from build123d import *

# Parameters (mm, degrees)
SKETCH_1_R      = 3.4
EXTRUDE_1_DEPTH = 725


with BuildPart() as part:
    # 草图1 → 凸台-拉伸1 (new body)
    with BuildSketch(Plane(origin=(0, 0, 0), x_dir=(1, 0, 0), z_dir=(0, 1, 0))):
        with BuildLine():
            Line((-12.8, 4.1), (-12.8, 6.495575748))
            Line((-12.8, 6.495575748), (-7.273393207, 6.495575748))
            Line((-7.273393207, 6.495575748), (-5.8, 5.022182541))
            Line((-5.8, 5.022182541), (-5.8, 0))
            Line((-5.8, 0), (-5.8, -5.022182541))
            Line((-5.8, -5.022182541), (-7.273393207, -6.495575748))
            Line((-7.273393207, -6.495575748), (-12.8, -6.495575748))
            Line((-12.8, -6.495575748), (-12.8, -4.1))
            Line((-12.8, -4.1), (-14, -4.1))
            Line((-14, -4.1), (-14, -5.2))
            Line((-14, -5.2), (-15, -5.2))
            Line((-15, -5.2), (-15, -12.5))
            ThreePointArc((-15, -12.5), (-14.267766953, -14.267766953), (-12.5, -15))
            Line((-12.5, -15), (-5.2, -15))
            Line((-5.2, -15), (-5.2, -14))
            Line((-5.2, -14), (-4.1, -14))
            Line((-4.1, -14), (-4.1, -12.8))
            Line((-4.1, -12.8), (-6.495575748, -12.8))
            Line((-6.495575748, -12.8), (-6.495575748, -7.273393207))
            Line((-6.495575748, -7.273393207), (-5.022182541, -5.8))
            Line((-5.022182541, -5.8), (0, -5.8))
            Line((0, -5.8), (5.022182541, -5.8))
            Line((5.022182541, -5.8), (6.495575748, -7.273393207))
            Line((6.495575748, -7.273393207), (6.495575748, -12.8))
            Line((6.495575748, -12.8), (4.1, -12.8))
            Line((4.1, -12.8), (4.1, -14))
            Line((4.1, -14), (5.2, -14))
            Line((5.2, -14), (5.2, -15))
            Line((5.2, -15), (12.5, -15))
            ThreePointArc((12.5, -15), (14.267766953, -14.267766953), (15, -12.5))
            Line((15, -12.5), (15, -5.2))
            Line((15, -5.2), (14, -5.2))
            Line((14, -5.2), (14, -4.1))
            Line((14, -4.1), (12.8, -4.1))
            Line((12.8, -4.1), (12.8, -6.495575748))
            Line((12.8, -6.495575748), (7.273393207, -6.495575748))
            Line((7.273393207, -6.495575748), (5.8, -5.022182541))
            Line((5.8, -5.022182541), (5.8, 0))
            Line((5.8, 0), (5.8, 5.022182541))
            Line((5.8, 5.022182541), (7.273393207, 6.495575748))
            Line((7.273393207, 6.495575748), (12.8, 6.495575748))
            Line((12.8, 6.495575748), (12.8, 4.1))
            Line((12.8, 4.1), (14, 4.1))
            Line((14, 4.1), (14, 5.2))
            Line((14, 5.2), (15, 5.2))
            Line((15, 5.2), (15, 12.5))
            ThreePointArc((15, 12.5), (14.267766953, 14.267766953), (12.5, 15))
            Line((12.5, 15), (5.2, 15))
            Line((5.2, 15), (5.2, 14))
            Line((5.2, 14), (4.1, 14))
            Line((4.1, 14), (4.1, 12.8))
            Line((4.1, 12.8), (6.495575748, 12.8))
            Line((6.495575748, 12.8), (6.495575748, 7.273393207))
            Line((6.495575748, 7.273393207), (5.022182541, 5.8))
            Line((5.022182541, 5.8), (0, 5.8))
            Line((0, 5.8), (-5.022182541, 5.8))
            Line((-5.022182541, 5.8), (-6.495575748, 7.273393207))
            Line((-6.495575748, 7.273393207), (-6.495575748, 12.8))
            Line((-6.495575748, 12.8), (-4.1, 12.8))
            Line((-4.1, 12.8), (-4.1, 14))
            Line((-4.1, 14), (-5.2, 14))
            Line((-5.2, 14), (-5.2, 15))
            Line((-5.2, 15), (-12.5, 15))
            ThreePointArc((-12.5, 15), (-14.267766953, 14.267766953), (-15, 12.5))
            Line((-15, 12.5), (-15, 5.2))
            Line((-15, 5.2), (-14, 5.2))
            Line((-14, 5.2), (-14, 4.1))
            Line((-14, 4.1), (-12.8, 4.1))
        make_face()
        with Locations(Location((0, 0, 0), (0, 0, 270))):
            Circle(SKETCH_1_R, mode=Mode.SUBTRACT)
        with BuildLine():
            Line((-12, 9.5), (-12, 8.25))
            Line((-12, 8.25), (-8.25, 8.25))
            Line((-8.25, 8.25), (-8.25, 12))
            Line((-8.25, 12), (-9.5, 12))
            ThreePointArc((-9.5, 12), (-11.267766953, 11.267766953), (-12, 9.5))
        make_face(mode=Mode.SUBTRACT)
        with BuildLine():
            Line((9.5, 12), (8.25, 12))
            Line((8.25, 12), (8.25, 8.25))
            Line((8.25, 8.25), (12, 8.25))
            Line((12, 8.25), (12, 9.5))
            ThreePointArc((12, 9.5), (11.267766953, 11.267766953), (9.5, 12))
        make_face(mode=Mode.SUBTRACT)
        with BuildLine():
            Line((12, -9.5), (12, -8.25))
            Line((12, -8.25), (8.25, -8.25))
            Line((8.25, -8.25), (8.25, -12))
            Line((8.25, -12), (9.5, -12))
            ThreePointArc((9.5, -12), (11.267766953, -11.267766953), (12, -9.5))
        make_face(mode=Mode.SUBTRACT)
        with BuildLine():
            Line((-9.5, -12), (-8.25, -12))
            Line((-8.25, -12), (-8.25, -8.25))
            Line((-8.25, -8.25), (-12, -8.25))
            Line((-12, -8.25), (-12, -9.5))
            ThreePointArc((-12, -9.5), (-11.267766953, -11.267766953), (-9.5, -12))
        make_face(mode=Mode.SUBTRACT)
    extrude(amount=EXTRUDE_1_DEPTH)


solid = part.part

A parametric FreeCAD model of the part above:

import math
import FreeCAD as App
import Part
import Sketcher
from FreeCAD import Vector

doc = App.newDocument("Part")
body = doc.addObject("PartDesign::Body", "Body")

# Sketch on XZ plane
sketch1 = body.newObject("Sketcher::SketchObject", "Sketch")
sketch1.AttachmentSupport = (doc.getObject("XZ_Plane"), [""])
sketch1.MapMode = "FlatFace"
sketch1.addGeometry([
    Part.LineSegment(Vector(-12.8, -4.1, 0), Vector(-12.8, -6.5, 0)),  # 0
    Part.LineSegment(Vector(-12.8, -6.5, 0), Vector(-7.3, -6.5, 0)),  # 1
    Part.LineSegment(Vector(-7.3, -6.5, 0), Vector(-5.8, -5, 0)),  # 2
    Part.LineSegment(Vector(-5.8, -5, 0), Vector(-5.8, 5, 0)),  # 3
    Part.LineSegment(Vector(-5.8, 5, 0), Vector(-7.3, 6.5, 0)),  # 4
    Part.LineSegment(Vector(-7.3, 6.5, 0), Vector(-12.8, 6.5, 0)),  # 5
    Part.LineSegment(Vector(-12.8, 6.5, 0), Vector(-12.8, 4.1, 0)),  # 6
    Part.LineSegment(Vector(-12.8, 4.1, 0), Vector(-14, 4.1, 0)),  # 7
    Part.LineSegment(Vector(-14, 4.1, 0), Vector(-14, 5.2, 0)),  # 8
    Part.LineSegment(Vector(-14, 5.2, 0), Vector(-15, 5.2, 0)),  # 9
    Part.LineSegment(Vector(-15, 5.2, 0), Vector(-15, 12.5, 0)),  # 10
    Part.ArcOfCircle(Part.Circle(Vector(-12.5, 12.5, 0), Vector(0, 0, 1), 2.5), math.radians(90), math.radians(180)),  # 11
    Part.LineSegment(Vector(-12.5, 15, 0), Vector(-5.2, 15, 0)),  # 12
    Part.LineSegment(Vector(-5.2, 15, 0), Vector(-5.2, 14, 0)),  # 13
    Part.LineSegment(Vector(-5.2, 14, 0), Vector(-4.1, 14, 0)),  # 14
    Part.LineSegment(Vector(-4.1, 14, 0), Vector(-4.1, 12.8, 0)),  # 15
    Part.LineSegment(Vector(-4.1, 12.8, 0), Vector(-6.5, 12.8, 0)),  # 16
    Part.LineSegment(Vector(-6.5, 12.8, 0), Vector(-6.5, 7.3, 0)),  # 17
    Part.LineSegment(Vector(-6.5, 7.3, 0), Vector(-5, 5.8, 0)),  # 18
    Part.LineSegment(Vector(-5, 5.8, 0), Vector(5, 5.8, 0)),  # 19
    Part.LineSegment(Vector(5, 5.8, 0), Vector(6.5, 7.3, 0)),  # 20
    Part.LineSegment(Vector(6.5, 7.3, 0), Vector(6.5, 12.8, 0)),  # 21
    Part.LineSegment(Vector(6.5, 12.8, 0), Vector(4.1, 12.8, 0)),  # 22
    Part.LineSegment(Vector(4.1, 12.8, 0), Vector(4.1, 14, 0)),  # 23
    Part.LineSegment(Vector(4.1, 14, 0), Vector(5.2, 14, 0)),  # 24
    Part.LineSegment(Vector(5.2, 14, 0), Vector(5.2, 15, 0)),  # 25
    Part.LineSegment(Vector(5.2, 15, 0), Vector(12.5, 15, 0)),  # 26
    Part.ArcOfCircle(Part.Circle(Vector(12.5, 12.5, 0), Vector(0, 0, 1), 2.5), math.radians(0), math.radians(90)),  # 27
    Part.LineSegment(Vector(15, 12.5, 0), Vector(15, 5.2, 0)),  # 28
    Part.LineSegment(Vector(15, 5.2, 0), Vector(14, 5.2, 0)),  # 29
    Part.LineSegment(Vector(14, 5.2, 0), Vector(14, 4.1, 0)),  # 30
    Part.LineSegment(Vector(14, 4.1, 0), Vector(12.8, 4.1, 0)),  # 31
    Part.LineSegment(Vector(12.8, 4.1, 0), Vector(12.8, 6.5, 0)),  # 32
    Part.LineSegment(Vector(12.8, 6.5, 0), Vector(7.3, 6.5, 0)),  # 33
    Part.LineSegment(Vector(7.3, 6.5, 0), Vector(5.8, 5, 0)),  # 34
    Part.LineSegment(Vector(5.8, 5, 0), Vector(5.8, -5, 0)),  # 35
    Part.LineSegment(Vector(5.8, -5, 0), Vector(7.3, -6.5, 0)),  # 36
    Part.LineSegment(Vector(7.3, -6.5, 0), Vector(12.8, -6.5, 0)),  # 37
    Part.LineSegment(Vector(12.8, -6.5, 0), Vector(12.8, -4.1, 0)),  # 38
    Part.LineSegment(Vector(12.8, -4.1, 0), Vector(14, -4.1, 0)),  # 39
    Part.LineSegment(Vector(14, -4.1, 0), Vector(14, -5.2, 0)),  # 40
    Part.LineSegment(Vector(14, -5.2, 0), Vector(15, -5.2, 0)),  # 41
    Part.LineSegment(Vector(15, -5.2, 0), Vector(15, -12.5, 0)),  # 42
    Part.ArcOfCircle(Part.Circle(Vector(12.5, -12.5, 0), Vector(0, 0, 1), 2.5), math.radians(-90), math.radians(0)),  # 43
    Part.LineSegment(Vector(12.5, -15, 0), Vector(5.2, -15, 0)),  # 44
    Part.LineSegment(Vector(5.2, -15, 0), Vector(5.2, -14, 0)),  # 45
    Part.LineSegment(Vector(5.2, -14, 0), Vector(4.1, -14, 0)),  # 46
    Part.LineSegment(Vector(4.1, -14, 0), Vector(4.1, -12.8, 0)),  # 47
    Part.LineSegment(Vector(4.1, -12.8, 0), Vector(6.5, -12.8, 0)),  # 48
    Part.LineSegment(Vector(6.5, -12.8, 0), Vector(6.5, -7.3, 0)),  # 49
    Part.LineSegment(Vector(6.5, -7.3, 0), Vector(5, -5.8, 0)),  # 50
    Part.LineSegment(Vector(5, -5.8, 0), Vector(-5, -5.8, 0)),  # 51
    Part.LineSegment(Vector(-5, -5.8, 0), Vector(-6.5, -7.3, 0)),  # 52
    Part.LineSegment(Vector(-6.5, -7.3, 0), Vector(-6.5, -12.8, 0)),  # 53
    Part.LineSegment(Vector(-6.5, -12.8, 0), Vector(-4.1, -12.8, 0)),  # 54
    Part.LineSegment(Vector(-4.1, -12.8, 0), Vector(-4.1, -14, 0)),  # 55
    Part.LineSegment(Vector(-4.1, -14, 0), Vector(-5.2, -14, 0)),  # 56
    Part.LineSegment(Vector(-5.2, -14, 0), Vector(-5.2, -15, 0)),  # 57
    Part.LineSegment(Vector(-5.2, -15, 0), Vector(-12.5, -15, 0)),  # 58
    Part.ArcOfCircle(Part.Circle(Vector(-12.5, -12.5, 0), Vector(0, 0, 1), 2.5), math.radians(180), math.radians(270)),  # 59
    Part.LineSegment(Vector(-15, -12.5, 0), Vector(-15, -5.2, 0)),  # 60
    Part.LineSegment(Vector(-15, -5.2, 0), Vector(-14, -5.2, 0)),  # 61
    Part.LineSegment(Vector(-14, -5.2, 0), Vector(-14, -4.1, 0)),  # 62
    Part.LineSegment(Vector(-14, -4.1, 0), Vector(-12.8, -4.1, 0)),  # 63
    Part.LineSegment(Vector(-8.2, 12, 0), Vector(-9.5, 12, 0)),  # 64
    Part.ArcOfCircle(Part.Circle(Vector(-9.5, 9.5, 0), Vector(0, 0, 1), 2.5), math.radians(90), math.radians(180)),  # 65
    Part.LineSegment(Vector(-12, 9.5, 0), Vector(-12, 8.2, 0)),  # 66
    Part.LineSegment(Vector(-12, 8.2, 0), Vector(-8.2, 8.2, 0)),  # 67
    Part.LineSegment(Vector(-8.2, 8.2, 0), Vector(-8.2, 12, 0)),  # 68
    Part.LineSegment(Vector(12, 8.2, 0), Vector(12, 9.5, 0)),  # 69
    Part.ArcOfCircle(Part.Circle(Vector(9.5, 9.5, 0), Vector(0, 0, 1), 2.5), math.radians(0), math.radians(90)),  # 70
    Part.LineSegment(Vector(9.5, 12, 0), Vector(8.2, 12, 0)),  # 71
    Part.LineSegment(Vector(8.2, 12, 0), Vector(8.2, 8.2, 0)),  # 72
    Part.LineSegment(Vector(8.2, 8.2, 0), Vector(12, 8.2, 0)),  # 73
    Part.LineSegment(Vector(-12, -8.2, 0), Vector(-12, -9.5, 0)),  # 74
    Part.ArcOfCircle(Part.Circle(Vector(-9.5, -9.5, 0), Vector(0, 0, 1), 2.5), math.radians(180), math.radians(270)),  # 75
    Part.LineSegment(Vector(-9.5, -12, 0), Vector(-8.2, -12, 0)),  # 76
    Part.LineSegment(Vector(-8.2, -12, 0), Vector(-8.2, -8.2, 0)),  # 77
    Part.LineSegment(Vector(-8.2, -8.2, 0), Vector(-12, -8.2, 0)),  # 78
    Part.Circle(Vector(0, 0, 0), Vector(0, 0, 1), 3.4),  # 79
    Part.LineSegment(Vector(8.2, -12, 0), Vector(9.5, -12, 0)),  # 80
    Part.ArcOfCircle(Part.Circle(Vector(9.5, -9.5, 0), Vector(0, 0, 1), 2.5), math.radians(-90), math.radians(0)),  # 81
    Part.LineSegment(Vector(12, -9.5, 0), Vector(12, -8.2, 0)),  # 82
    Part.LineSegment(Vector(12, -8.2, 0), Vector(8.2, -8.2, 0)),  # 83
    Part.LineSegment(Vector(8.2, -8.2, 0), Vector(8.2, -12, 0)),  # 84
], False)
sketch1.addConstraint([
    Sketcher.Constraint("Coincident", 0, 2, 1, 1),
    Sketcher.Constraint("Coincident", 1, 2, 2, 1),
    Sketcher.Constraint("Coincident", 2, 2, 3, 1),
    Sketcher.Constraint("Coincident", 3, 2, 4, 1),
    Sketcher.Constraint("Coincident", 4, 2, 5, 1),
    Sketcher.Constraint("Coincident", 5, 2, 6, 1),
    Sketcher.Constraint("Coincident", 6, 2, 7, 1),
    Sketcher.Constraint("Coincident", 7, 2, 8, 1),
    Sketcher.Constraint("Coincident", 8, 2, 9, 1),
    Sketcher.Constraint("Coincident", 9, 2, 10, 1),
    Sketcher.Constraint("Tangent", 10, 2, 11, 2),
    Sketcher.Constraint("Tangent", 11, 1, 12, 1),
    Sketcher.Constraint("Coincident", 12, 2, 13, 1),
    Sketcher.Constraint("Coincident", 13, 2, 14, 1),
    Sketcher.Constraint("Coincident", 14, 2, 15, 1),
    Sketcher.Constraint("Coincident", 15, 2, 16, 1),
    Sketcher.Constraint("Coincident", 16, 2, 17, 1),
    Sketcher.Constraint("Coincident", 17, 2, 18, 1),
    Sketcher.Constraint("Coincident", 18, 2, 19, 1),
    Sketcher.Constraint("Coincident", 19, 2, 20, 1),
    Sketcher.Constraint("Coincident", 20, 2, 21, 1),
    Sketcher.Constraint("Coincident", 21, 2, 22, 1),
    Sketcher.Constraint("Coincident", 22, 2, 23, 1),
    Sketcher.Constraint("Coincident", 23, 2, 24, 1),
    Sketcher.Constraint("Coincident", 24, 2, 25, 1),
    Sketcher.Constraint("Coincident", 25, 2, 26, 1),
    Sketcher.Constraint("Tangent", 26, 2, 27, 2),
    Sketcher.Constraint("Tangent", 27, 1, 28, 1),
    Sketcher.Constraint("Coincident", 28, 2, 29, 1),
    Sketcher.Constraint("Coincident", 29, 2, 30, 1),
    Sketcher.Constraint("Coincident", 30, 2, 31, 1),
    Sketcher.Constraint("Coincident", 31, 2, 32, 1),
    Sketcher.Constraint("Coincident", 32, 2, 33, 1),
    Sketcher.Constraint("Coincident", 33, 2, 34, 1),
    Sketcher.Constraint("Coincident", 34, 2, 35, 1),
    Sketcher.Constraint("Coincident", 35, 2, 36, 1),
    Sketcher.Constraint("Coincident", 36, 2, 37, 1),
    Sketcher.Constraint("Coincident", 37, 2, 38, 1),
    Sketcher.Constraint("Coincident", 38, 2, 39, 1),
    Sketcher.Constraint("Coincident", 39, 2, 40, 1),
    Sketcher.Constraint("Coincident", 40, 2, 41, 1),
    Sketcher.Constraint("Coincident", 41, 2, 42, 1),
    Sketcher.Constraint("Tangent", 42, 2, 43, 2),
    Sketcher.Constraint("Tangent", 43, 1, 44, 1),
    Sketcher.Constraint("Coincident", 44, 2, 45, 1),
    Sketcher.Constraint("Coincident", 45, 2, 46, 1),
    Sketcher.Constraint("Coincident", 46, 2, 47, 1),
    Sketcher.Constraint("Coincident", 47, 2, 48, 1),
    Sketcher.Constraint("Coincident", 48, 2, 49, 1),
    Sketcher.Constraint("Coincident", 49, 2, 50, 1),
    Sketcher.Constraint("Coincident", 50, 2, 51, 1),
    Sketcher.Constraint("Coincident", 51, 2, 52, 1),
    Sketcher.Constraint("Coincident", 52, 2, 53, 1),
    Sketcher.Constraint("Coincident", 53, 2, 54, 1),
    Sketcher.Constraint("Coincident", 54, 2, 55, 1),
    Sketcher.Constraint("Coincident", 55, 2, 56, 1),
    Sketcher.Constraint("Coincident", 56, 2, 57, 1),
    Sketcher.Constraint("Coincident", 57, 2, 58, 1),
    Sketcher.Constraint("Tangent", 58, 2, 59, 2),
    Sketcher.Constraint("Tangent", 59, 1, 60, 1),
    Sketcher.Constraint("Coincident", 60, 2, 61, 1),
    Sketcher.Constraint("Coincident", 61, 2, 62, 1),
    Sketcher.Constraint("Coincident", 62, 2, 63, 1),
    Sketcher.Constraint("Coincident", 63, 2, 0, 1),
    Sketcher.Constraint("Tangent", 64, 2, 65, 1),
    Sketcher.Constraint("Tangent", 65, 2, 66, 1),
    Sketcher.Constraint("Coincident", 66, 2, 67, 1),
    Sketcher.Constraint("Coincident", 67, 2, 68, 1),
    Sketcher.Constraint("Coincident", 68, 2, 64, 1),
    Sketcher.Constraint("Tangent", 69, 2, 70, 1),
    Sketcher.Constraint("Tangent", 70, 2, 71, 1),
    Sketcher.Constraint("Coincident", 71, 2, 72, 1),
    Sketcher.Constraint("Coincident", 72, 2, 73, 1),
    Sketcher.Constraint("Coincident", 73, 2, 69, 1),
    Sketcher.Constraint("Tangent", 74, 2, 75, 1),
    Sketcher.Constraint("Tangent", 75, 2, 76, 1),
    Sketcher.Constraint("Coincident", 76, 2, 77, 1),
    Sketcher.Constraint("Coincident", 77, 2, 78, 1),
    Sketcher.Constraint("Coincident", 78, 2, 74, 1),
    Sketcher.Constraint("Tangent", 80, 2, 81, 1),
    Sketcher.Constraint("Tangent", 81, 2, 82, 1),
    Sketcher.Constraint("Coincident", 82, 2, 83, 1),
    Sketcher.Constraint("Coincident", 83, 2, 84, 1),
    Sketcher.Constraint("Coincident", 84, 2, 80, 1),
    Sketcher.Constraint("Vertical", 0),
    Sketcher.Constraint("Horizontal", 1),
    Sketcher.Constraint("Vertical", 3),
    Sketcher.Constraint("Horizontal", 5),
    Sketcher.Constraint("Vertical", 6),
    Sketcher.Constraint("Horizontal", 7),
    Sketcher.Constraint("Vertical", 8),
    Sketcher.Constraint("Horizontal", 9),
    Sketcher.Constraint("Vertical", 10),
    Sketcher.Constraint("Horizontal", 12),
    Sketcher.Constraint("Vertical", 13),
    Sketcher.Constraint("Horizontal", 14),
    Sketcher.Constraint("Vertical", 15),
    Sketcher.Constraint("Horizontal", 16),
    Sketcher.Constraint("Vertical", 17),
    Sketcher.Constraint("Horizontal", 19),
    Sketcher.Constraint("Vertical", 21),
    Sketcher.Constraint("Horizontal", 22),
    Sketcher.Constraint("Vertical", 23),
    Sketcher.Constraint("Horizontal", 24),
    Sketcher.Constraint("Vertical", 25),
    Sketcher.Constraint("Horizontal", 26),
    Sketcher.Constraint("Vertical", 28),
    Sketcher.Constraint("Horizontal", 29),
    Sketcher.Constraint("Vertical", 30),
    Sketcher.Constraint("Horizontal", 31),
    Sketcher.Constraint("Vertical", 32),
    Sketcher.Constraint("Horizontal", 33),
    Sketcher.Constraint("Vertical", 35),
    Sketcher.Constraint("Horizontal", 37),
    Sketcher.Constraint("Vertical", 38),
    Sketcher.Constraint("Horizontal", 39),
    Sketcher.Constraint("Vertical", 40),
    Sketcher.Constraint("Horizontal", 41),
    Sketcher.Constraint("Vertical", 42),
    Sketcher.Constraint("Horizontal", 44),
    Sketcher.Constraint("Vertical", 45),
    Sketcher.Constraint("Horizontal", 46),
    Sketcher.Constraint("Vertical", 47),
    Sketcher.Constraint("Horizontal", 48),
    Sketcher.Constraint("Vertical", 49),
    Sketcher.Constraint("Horizontal", 51),
    Sketcher.Constraint("Vertical", 53),
    Sketcher.Constraint("Horizontal", 54),
    Sketcher.Constraint("Vertical", 55),
    Sketcher.Constraint("Horizontal", 56),
    Sketcher.Constraint("Vertical", 57),
    Sketcher.Constraint("Horizontal", 58),
    Sketcher.Constraint("Vertical", 60),
    Sketcher.Constraint("Horizontal", 61),
    Sketcher.Constraint("Vertical", 62),
    Sketcher.Constraint("Horizontal", 63),
    Sketcher.Constraint("Horizontal", 64),
    Sketcher.Constraint("Vertical", 66),
    Sketcher.Constraint("Horizontal", 67),
    Sketcher.Constraint("Vertical", 68),
    Sketcher.Constraint("Vertical", 69),
    Sketcher.Constraint("Horizontal", 71),
    Sketcher.Constraint("Vertical", 72),
    Sketcher.Constraint("Horizontal", 73),
    Sketcher.Constraint("Vertical", 74),
    Sketcher.Constraint("Horizontal", 76),
    Sketcher.Constraint("Vertical", 77),
    Sketcher.Constraint("Horizontal", 78),
    Sketcher.Constraint("Horizontal", 80),
    Sketcher.Constraint("Vertical", 82),
    Sketcher.Constraint("Horizontal", 83),
    Sketcher.Constraint("Vertical", 84),
    Sketcher.Constraint("Coincident", 79, 3, -1, 1),
    Sketcher.Constraint("Equal", 11, 27),
    Sketcher.Constraint("Equal", 27, 43),
    Sketcher.Constraint("Equal", 43, 59),
    Sketcher.Constraint("Equal", 59, 65),
    Sketcher.Constraint("Equal", 65, 70),
    Sketcher.Constraint("Equal", 70, 75),
    Sketcher.Constraint("Equal", 75, 81),
    Sketcher.Constraint("Symmetric", 11, 3, 43, 3, -1, 1),
    Sketcher.Constraint("Symmetric", 27, 3, 59, 3, -1, 1),
    Sketcher.Constraint("Symmetric", 70, 3, 75, 3, -1, 1),
    Sketcher.Constraint("Symmetric", 65, 3, 81, 3, -1, 1),
    Sketcher.Constraint("Symmetric", 0, 2, 32, 2, -1, 1),
    Sketcher.Constraint("Symmetric", 2, 2, 34, 2, -1, 1),
    Sketcher.Constraint("Symmetric", 4, 2, 36, 2, -1, 1),
    Sketcher.Constraint("Symmetric", 6, 2, 38, 2, -1, 1),
    Sketcher.Constraint("Symmetric", 8, 2, 40, 2, -1, 1),
    Sketcher.Constraint("Symmetric", 13, 2, 45, 2, -1, 1),
    Sketcher.Constraint("Symmetric", 15, 2, 47, 2, -1, 1),
    Sketcher.Constraint("Symmetric", 17, 2, 49, 2, -1, 1),
    Sketcher.Constraint("Symmetric", 18, 2, 50, 2, -1, 1),
    Sketcher.Constraint("Symmetric", 20, 2, 52, 2, -1, 1),
    Sketcher.Constraint("Symmetric", 22, 2, 54, 2, -1, 1),
    Sketcher.Constraint("Symmetric", 24, 2, 56, 2, -1, 1),
    Sketcher.Constraint("Symmetric", 29, 2, 61, 2, -1, 1),
    Sketcher.Constraint("Symmetric", 72, 2, 77, 2, -1, 1),
    Sketcher.Constraint("Symmetric", 67, 2, 83, 2, -1, 1),
    Sketcher.Constraint("Symmetric", 11, 3, 27, 3, -2),
    Sketcher.Constraint("Symmetric", 65, 3, 70, 3, -2),
    Sketcher.Constraint("Symmetric", 17, 2, 20, 2, -2),
    Sketcher.Constraint("Symmetric", 15, 2, 22, 2, -2),
    Sketcher.Constraint("Symmetric", 13, 2, 24, 2, -2),
    Sketcher.Constraint("Symmetric", 8, 2, 29, 2, -2),
    Sketcher.Constraint("Symmetric", 6, 2, 31, 2, -2),
    Sketcher.Constraint("Symmetric", 4, 2, 33, 2, -2),
    Sketcher.Constraint("Symmetric", 67, 2, 72, 2, -2),
    Sketcher.Constraint("Perpendicular", 2, 4),
    Sketcher.Constraint("Parallel", 4, 18),
    Sketcher.Constraint("Perpendicular", 18, 20),
    Sketcher.Constraint("Parallel", 20, 34),
    Sketcher.Constraint("Perpendicular", 34, 36),
    Sketcher.Constraint("Perpendicular", 50, 52),
    Sketcher.Constraint("Horizontal", 3, 2, 34, 2),
    Sketcher.Constraint("Horizontal", 39, 2, 62, 2),
    Sketcher.Constraint("Equal", 54, 0),
    Sketcher.Constraint("Equal", 51, 3),
    Sketcher.Constraint("Equal", 56, 8),
    Sketcher.Constraint("Equal", 58, 10),
    Sketcher.Constraint("Equal", 61, 13),
    Sketcher.Constraint("Equal", 63, 15),
    Sketcher.Constraint("Equal", 37, 17),
    Sketcher.Constraint("Equal", 80, 66),
    Sketcher.Constraint("Equal", 4, 18),
    Sketcher.Constraint("Diameter", 79, 6.8),
    Sketcher.Constraint("Radius", 11, 2.5),
    Sketcher.Constraint("DistanceX", 9, 2, 9, 1, 1.0),
    Sketcher.Constraint("DistanceX", 7, 2, 7, 1, 1.2),
    Sketcher.Constraint("DistanceX", 12, 1, 12, 2, 7.3),
    Sketcher.Constraint("DistanceX", 14, 1, 14, 2, 1.1),
    Sketcher.Constraint("DistanceX", 7, 2, -1, 1, 14.0),
    Sketcher.Constraint("DistanceY", -1, 1, 64, 2, 12.0),
    Sketcher.Constraint("DistanceX", 65, 2, -1, 1, 12.0),
    Sketcher.Constraint("DistanceX", 64, 2, 64, 1, 1.25),
    Sketcher.Constraint("DistanceX", 2, 2, -1, 1, 5.8),
    Sketcher.Constraint("DistanceX", 1, 1, 1, 2, 5.526607),
    Sketcher.Constraint("DistanceX", 16, 2, 16, 1, 2.395576),
])
pad1 = body.newObject("PartDesign::Pad", "Pad")
pad1.Profile = sketch1
pad1.Length = 725
pad1.Reversed = True

doc.recompute()
